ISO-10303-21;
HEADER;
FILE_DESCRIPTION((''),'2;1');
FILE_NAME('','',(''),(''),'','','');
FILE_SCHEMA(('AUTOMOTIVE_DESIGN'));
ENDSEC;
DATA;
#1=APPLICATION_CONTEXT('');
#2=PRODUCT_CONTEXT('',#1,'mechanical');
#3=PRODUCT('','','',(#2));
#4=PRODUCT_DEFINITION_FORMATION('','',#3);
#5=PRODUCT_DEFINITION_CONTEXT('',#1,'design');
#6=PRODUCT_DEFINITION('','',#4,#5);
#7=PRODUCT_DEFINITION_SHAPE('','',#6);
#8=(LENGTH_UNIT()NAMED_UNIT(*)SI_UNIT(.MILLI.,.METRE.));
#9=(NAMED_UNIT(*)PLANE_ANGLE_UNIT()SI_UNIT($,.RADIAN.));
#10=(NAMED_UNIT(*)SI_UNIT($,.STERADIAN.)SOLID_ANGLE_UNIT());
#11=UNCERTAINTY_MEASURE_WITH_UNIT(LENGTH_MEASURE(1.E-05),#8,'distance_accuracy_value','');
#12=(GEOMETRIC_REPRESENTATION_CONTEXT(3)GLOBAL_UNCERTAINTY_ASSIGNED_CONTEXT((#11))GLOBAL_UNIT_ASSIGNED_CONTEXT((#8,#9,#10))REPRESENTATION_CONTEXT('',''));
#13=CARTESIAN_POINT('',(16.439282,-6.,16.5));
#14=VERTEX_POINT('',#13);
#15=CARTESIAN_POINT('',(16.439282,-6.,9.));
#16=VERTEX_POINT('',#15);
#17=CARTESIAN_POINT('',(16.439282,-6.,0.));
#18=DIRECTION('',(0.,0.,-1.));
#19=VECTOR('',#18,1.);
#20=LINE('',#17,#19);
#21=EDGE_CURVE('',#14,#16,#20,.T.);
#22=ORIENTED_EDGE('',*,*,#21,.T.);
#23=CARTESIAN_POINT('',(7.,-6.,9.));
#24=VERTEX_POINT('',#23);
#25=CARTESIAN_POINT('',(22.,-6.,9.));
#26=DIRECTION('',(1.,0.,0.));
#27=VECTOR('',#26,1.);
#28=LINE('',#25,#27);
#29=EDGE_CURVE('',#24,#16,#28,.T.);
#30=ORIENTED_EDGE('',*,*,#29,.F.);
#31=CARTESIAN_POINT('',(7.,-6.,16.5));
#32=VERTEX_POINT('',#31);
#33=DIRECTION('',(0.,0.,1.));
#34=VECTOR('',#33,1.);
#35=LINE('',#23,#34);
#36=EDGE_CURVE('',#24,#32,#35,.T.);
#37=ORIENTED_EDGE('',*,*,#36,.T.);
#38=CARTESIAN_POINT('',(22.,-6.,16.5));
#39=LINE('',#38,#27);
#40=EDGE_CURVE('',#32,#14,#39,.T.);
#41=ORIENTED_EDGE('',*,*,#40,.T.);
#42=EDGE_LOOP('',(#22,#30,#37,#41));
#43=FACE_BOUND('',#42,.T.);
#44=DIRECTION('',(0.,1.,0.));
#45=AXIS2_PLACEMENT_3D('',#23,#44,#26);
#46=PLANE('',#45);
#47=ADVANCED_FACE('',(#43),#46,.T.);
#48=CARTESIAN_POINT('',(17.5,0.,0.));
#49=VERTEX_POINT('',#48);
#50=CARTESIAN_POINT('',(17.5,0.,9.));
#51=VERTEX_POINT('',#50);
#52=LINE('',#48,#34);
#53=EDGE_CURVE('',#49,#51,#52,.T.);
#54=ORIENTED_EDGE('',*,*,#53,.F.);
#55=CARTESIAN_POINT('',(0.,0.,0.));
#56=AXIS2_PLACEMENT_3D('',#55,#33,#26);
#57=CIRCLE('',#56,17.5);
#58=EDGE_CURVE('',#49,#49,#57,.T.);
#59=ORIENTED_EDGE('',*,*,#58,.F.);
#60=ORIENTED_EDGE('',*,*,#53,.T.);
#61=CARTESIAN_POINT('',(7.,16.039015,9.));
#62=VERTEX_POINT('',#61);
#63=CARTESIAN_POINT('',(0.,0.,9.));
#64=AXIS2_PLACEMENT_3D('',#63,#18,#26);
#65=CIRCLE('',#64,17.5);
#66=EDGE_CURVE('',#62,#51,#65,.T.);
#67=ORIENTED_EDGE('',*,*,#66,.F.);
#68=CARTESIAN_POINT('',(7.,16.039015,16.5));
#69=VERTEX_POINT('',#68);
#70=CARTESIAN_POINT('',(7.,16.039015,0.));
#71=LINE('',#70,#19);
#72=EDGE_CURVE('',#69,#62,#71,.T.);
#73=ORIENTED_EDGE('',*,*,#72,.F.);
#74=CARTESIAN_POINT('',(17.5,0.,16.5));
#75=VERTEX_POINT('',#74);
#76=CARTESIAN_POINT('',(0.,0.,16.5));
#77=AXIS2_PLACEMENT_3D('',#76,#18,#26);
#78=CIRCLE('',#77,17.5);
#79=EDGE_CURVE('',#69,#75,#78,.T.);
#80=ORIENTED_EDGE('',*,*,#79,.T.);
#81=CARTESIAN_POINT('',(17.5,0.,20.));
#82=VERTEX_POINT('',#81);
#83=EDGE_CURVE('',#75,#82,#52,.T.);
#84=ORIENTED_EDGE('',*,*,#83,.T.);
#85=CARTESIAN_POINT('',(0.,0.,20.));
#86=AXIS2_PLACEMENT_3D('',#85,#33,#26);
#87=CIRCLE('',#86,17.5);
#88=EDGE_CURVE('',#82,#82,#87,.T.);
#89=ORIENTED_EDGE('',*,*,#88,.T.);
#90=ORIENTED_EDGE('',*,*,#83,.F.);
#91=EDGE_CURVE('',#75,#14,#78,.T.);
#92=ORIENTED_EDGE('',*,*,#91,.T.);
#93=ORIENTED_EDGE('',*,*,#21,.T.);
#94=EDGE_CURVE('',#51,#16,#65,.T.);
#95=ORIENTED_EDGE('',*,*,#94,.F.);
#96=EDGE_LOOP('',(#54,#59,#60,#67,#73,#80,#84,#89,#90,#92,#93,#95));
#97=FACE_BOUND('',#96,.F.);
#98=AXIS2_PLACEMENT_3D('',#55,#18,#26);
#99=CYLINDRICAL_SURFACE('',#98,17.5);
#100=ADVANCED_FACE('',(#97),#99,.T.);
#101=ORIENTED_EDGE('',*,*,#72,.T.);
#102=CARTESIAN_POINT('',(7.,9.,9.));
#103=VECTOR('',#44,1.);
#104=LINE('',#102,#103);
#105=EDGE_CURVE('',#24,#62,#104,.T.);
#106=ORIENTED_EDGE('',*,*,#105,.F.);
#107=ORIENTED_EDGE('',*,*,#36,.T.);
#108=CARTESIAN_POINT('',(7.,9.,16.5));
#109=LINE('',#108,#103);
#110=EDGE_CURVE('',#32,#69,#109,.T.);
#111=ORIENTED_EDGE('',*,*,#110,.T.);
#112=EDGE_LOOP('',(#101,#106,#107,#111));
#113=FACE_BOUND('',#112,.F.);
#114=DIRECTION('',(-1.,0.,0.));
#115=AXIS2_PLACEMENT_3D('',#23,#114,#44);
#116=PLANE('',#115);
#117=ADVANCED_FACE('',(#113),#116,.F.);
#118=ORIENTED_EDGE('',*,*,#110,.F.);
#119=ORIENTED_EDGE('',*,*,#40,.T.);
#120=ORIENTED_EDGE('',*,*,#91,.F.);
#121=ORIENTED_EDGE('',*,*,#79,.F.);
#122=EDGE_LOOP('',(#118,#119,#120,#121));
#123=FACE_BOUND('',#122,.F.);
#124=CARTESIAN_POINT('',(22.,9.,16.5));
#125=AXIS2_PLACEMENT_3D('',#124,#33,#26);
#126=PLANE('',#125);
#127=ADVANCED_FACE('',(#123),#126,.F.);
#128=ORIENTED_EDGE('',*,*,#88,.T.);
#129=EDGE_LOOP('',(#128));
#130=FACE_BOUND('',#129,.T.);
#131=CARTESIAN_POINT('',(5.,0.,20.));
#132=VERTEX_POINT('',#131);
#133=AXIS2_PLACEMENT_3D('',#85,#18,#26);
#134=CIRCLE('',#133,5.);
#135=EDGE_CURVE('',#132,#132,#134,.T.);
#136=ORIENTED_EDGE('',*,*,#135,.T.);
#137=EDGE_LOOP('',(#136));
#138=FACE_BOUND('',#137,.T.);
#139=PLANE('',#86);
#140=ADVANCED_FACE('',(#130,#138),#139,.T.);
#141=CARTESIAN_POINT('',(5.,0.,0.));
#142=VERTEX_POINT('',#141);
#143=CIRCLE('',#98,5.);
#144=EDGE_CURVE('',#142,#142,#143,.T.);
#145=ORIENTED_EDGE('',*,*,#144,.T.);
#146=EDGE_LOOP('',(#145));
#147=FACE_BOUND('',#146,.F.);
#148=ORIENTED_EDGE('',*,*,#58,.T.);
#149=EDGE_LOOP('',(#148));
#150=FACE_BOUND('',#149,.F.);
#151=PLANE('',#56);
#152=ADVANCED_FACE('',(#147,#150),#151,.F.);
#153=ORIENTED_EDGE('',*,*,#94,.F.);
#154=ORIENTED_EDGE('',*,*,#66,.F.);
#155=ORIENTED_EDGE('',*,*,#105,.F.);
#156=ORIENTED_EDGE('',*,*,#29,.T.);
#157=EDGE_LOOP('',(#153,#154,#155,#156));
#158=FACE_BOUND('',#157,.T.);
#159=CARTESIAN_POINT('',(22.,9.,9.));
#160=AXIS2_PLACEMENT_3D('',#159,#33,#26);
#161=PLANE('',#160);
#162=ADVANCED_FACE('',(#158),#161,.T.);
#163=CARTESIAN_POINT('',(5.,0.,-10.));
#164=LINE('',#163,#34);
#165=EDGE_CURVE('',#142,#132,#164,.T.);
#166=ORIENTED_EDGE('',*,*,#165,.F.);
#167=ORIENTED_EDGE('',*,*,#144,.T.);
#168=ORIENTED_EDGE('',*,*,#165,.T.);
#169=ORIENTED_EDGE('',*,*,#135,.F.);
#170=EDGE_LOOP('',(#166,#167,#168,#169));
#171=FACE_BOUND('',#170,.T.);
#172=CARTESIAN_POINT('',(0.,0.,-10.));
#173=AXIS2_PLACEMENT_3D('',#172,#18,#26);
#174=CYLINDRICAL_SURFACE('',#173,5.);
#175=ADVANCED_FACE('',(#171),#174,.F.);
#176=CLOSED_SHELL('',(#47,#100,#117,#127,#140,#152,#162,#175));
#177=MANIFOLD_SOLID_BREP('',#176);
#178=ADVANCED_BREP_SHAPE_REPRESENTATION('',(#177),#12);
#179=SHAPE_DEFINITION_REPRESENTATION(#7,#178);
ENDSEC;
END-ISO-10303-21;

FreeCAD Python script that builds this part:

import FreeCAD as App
import Part
import Sketcher

doc = App.newDocument("Part")
body = doc.addObject("PartDesign::Body", "Body")

# Sketch on XY plane
sketch1 = body.newObject("Sketcher::SketchObject", "Sketch")
sketch1.AttachmentSupport = (doc.getObject("XY_Plane"), [""])
sketch1.MapMode = "FlatFace"
sketch1.AttachmentOffset = App.Placement(App.Vector(0, 0, 9), App.Rotation())
sketch1.addGeometry([
    Part.LineSegment(App.Vector(7, 24, 0), App.Vector(7, -6, 0)),
    Part.LineSegment(App.Vector(7, -6, 0), App.Vector(37, -6, 0)),
    Part.LineSegment(App.Vector(37, -6, 0), App.Vector(37, 24, 0)),
    Part.LineSegment(App.Vector(37, 24, 0), App.Vector(7, 24, 0)),
], False)
sketch1.addConstraint([
    Sketcher.Constraint("Coincident", 0, 2, 1, 1),
    Sketcher.Constraint("Coincident", 1, 2, 2, 1),
    Sketcher.Constraint("Coincident", 2, 2, 3, 1),
    Sketcher.Constraint("Coincident", 3, 2, 0, 1),
    Sketcher.Constraint("Vertical", 0),
    Sketcher.Constraint("Horizontal", 1),
    Sketcher.Constraint("Vertical", 2),
    Sketcher.Constraint("Horizontal", 3),
    Sketcher.Constraint("Equal", 3, 0),
    Sketcher.Constraint("DistanceX", 1, 1, 1, 2, 30.0),
    Sketcher.Constraint("DistanceX", -1, 1, 0, 2, 7.0),
    Sketcher.Constraint("DistanceY", 0, 2, -1, 1, 6.0),
])
pad1 = body.newObject("PartDesign::Pad", "Pad")
pad1.Profile = sketch1
pad1.Length = 7.5
body2 = doc.addObject("PartDesign::Body", "Body001")

# Sketch on XY plane
sketch2 = body2.newObject("Sketcher::SketchObject", "Sketch001")
sketch2.AttachmentSupport = (doc.getObject("XY_Plane001"), [""])
sketch2.MapMode = "FlatFace"
sketch2.AttachmentOffset = App.Placement(App.Vector(0, 0, -10), App.Rotation())
sketch2.addGeometry(Part.Circle(App.Vector(0, 0, 0), App.Vector(0, 0, 1), 5), False)
sketch2.addConstraint([
    Sketcher.Constraint("Coincident", 0, 3, -1, 1),
    Sketcher.Constraint("Diameter", 0, 10.0),
])
pad2 = body2.newObject("PartDesign::Pad", "Pad001")
pad2.Profile = sketch2
pad2.Length = 40
body3 = doc.addObject("PartDesign::Body", "Body002")

# Sketch on XY plane
sketch3 = body3.newObject("Sketcher::SketchObject", "Sketch002")
sketch3.AttachmentSupport = (doc.getObject("XY_Plane002"), [""])
sketch3.MapMode = "FlatFace"
sketch3.addGeometry(Part.Circle(App.Vector(0, 0, 0), App.Vector(0, 0, 1), 18), False)
sketch3.addConstraint([
    Sketcher.Constraint("Coincident", 0, 3, -1, 1),
    Sketcher.Constraint("Diameter", 0, 35.0),
])
pad3 = body3.newObject("PartDesign::Pad", "Pad002")
pad3.Profile = sketch3
pad3.Length = 20
doc.recompute()

boolean = body3.newObject("PartDesign::Boolean", "Boolean")
boolean.Type = "Cut"
boolean.addObjects([body2])
doc.recompute()

boolean2 = body3.newObject("PartDesign::Boolean", "Boolean001")
boolean2.Type = "Cut"
boolean2.addObjects([body])

doc.recompute()
